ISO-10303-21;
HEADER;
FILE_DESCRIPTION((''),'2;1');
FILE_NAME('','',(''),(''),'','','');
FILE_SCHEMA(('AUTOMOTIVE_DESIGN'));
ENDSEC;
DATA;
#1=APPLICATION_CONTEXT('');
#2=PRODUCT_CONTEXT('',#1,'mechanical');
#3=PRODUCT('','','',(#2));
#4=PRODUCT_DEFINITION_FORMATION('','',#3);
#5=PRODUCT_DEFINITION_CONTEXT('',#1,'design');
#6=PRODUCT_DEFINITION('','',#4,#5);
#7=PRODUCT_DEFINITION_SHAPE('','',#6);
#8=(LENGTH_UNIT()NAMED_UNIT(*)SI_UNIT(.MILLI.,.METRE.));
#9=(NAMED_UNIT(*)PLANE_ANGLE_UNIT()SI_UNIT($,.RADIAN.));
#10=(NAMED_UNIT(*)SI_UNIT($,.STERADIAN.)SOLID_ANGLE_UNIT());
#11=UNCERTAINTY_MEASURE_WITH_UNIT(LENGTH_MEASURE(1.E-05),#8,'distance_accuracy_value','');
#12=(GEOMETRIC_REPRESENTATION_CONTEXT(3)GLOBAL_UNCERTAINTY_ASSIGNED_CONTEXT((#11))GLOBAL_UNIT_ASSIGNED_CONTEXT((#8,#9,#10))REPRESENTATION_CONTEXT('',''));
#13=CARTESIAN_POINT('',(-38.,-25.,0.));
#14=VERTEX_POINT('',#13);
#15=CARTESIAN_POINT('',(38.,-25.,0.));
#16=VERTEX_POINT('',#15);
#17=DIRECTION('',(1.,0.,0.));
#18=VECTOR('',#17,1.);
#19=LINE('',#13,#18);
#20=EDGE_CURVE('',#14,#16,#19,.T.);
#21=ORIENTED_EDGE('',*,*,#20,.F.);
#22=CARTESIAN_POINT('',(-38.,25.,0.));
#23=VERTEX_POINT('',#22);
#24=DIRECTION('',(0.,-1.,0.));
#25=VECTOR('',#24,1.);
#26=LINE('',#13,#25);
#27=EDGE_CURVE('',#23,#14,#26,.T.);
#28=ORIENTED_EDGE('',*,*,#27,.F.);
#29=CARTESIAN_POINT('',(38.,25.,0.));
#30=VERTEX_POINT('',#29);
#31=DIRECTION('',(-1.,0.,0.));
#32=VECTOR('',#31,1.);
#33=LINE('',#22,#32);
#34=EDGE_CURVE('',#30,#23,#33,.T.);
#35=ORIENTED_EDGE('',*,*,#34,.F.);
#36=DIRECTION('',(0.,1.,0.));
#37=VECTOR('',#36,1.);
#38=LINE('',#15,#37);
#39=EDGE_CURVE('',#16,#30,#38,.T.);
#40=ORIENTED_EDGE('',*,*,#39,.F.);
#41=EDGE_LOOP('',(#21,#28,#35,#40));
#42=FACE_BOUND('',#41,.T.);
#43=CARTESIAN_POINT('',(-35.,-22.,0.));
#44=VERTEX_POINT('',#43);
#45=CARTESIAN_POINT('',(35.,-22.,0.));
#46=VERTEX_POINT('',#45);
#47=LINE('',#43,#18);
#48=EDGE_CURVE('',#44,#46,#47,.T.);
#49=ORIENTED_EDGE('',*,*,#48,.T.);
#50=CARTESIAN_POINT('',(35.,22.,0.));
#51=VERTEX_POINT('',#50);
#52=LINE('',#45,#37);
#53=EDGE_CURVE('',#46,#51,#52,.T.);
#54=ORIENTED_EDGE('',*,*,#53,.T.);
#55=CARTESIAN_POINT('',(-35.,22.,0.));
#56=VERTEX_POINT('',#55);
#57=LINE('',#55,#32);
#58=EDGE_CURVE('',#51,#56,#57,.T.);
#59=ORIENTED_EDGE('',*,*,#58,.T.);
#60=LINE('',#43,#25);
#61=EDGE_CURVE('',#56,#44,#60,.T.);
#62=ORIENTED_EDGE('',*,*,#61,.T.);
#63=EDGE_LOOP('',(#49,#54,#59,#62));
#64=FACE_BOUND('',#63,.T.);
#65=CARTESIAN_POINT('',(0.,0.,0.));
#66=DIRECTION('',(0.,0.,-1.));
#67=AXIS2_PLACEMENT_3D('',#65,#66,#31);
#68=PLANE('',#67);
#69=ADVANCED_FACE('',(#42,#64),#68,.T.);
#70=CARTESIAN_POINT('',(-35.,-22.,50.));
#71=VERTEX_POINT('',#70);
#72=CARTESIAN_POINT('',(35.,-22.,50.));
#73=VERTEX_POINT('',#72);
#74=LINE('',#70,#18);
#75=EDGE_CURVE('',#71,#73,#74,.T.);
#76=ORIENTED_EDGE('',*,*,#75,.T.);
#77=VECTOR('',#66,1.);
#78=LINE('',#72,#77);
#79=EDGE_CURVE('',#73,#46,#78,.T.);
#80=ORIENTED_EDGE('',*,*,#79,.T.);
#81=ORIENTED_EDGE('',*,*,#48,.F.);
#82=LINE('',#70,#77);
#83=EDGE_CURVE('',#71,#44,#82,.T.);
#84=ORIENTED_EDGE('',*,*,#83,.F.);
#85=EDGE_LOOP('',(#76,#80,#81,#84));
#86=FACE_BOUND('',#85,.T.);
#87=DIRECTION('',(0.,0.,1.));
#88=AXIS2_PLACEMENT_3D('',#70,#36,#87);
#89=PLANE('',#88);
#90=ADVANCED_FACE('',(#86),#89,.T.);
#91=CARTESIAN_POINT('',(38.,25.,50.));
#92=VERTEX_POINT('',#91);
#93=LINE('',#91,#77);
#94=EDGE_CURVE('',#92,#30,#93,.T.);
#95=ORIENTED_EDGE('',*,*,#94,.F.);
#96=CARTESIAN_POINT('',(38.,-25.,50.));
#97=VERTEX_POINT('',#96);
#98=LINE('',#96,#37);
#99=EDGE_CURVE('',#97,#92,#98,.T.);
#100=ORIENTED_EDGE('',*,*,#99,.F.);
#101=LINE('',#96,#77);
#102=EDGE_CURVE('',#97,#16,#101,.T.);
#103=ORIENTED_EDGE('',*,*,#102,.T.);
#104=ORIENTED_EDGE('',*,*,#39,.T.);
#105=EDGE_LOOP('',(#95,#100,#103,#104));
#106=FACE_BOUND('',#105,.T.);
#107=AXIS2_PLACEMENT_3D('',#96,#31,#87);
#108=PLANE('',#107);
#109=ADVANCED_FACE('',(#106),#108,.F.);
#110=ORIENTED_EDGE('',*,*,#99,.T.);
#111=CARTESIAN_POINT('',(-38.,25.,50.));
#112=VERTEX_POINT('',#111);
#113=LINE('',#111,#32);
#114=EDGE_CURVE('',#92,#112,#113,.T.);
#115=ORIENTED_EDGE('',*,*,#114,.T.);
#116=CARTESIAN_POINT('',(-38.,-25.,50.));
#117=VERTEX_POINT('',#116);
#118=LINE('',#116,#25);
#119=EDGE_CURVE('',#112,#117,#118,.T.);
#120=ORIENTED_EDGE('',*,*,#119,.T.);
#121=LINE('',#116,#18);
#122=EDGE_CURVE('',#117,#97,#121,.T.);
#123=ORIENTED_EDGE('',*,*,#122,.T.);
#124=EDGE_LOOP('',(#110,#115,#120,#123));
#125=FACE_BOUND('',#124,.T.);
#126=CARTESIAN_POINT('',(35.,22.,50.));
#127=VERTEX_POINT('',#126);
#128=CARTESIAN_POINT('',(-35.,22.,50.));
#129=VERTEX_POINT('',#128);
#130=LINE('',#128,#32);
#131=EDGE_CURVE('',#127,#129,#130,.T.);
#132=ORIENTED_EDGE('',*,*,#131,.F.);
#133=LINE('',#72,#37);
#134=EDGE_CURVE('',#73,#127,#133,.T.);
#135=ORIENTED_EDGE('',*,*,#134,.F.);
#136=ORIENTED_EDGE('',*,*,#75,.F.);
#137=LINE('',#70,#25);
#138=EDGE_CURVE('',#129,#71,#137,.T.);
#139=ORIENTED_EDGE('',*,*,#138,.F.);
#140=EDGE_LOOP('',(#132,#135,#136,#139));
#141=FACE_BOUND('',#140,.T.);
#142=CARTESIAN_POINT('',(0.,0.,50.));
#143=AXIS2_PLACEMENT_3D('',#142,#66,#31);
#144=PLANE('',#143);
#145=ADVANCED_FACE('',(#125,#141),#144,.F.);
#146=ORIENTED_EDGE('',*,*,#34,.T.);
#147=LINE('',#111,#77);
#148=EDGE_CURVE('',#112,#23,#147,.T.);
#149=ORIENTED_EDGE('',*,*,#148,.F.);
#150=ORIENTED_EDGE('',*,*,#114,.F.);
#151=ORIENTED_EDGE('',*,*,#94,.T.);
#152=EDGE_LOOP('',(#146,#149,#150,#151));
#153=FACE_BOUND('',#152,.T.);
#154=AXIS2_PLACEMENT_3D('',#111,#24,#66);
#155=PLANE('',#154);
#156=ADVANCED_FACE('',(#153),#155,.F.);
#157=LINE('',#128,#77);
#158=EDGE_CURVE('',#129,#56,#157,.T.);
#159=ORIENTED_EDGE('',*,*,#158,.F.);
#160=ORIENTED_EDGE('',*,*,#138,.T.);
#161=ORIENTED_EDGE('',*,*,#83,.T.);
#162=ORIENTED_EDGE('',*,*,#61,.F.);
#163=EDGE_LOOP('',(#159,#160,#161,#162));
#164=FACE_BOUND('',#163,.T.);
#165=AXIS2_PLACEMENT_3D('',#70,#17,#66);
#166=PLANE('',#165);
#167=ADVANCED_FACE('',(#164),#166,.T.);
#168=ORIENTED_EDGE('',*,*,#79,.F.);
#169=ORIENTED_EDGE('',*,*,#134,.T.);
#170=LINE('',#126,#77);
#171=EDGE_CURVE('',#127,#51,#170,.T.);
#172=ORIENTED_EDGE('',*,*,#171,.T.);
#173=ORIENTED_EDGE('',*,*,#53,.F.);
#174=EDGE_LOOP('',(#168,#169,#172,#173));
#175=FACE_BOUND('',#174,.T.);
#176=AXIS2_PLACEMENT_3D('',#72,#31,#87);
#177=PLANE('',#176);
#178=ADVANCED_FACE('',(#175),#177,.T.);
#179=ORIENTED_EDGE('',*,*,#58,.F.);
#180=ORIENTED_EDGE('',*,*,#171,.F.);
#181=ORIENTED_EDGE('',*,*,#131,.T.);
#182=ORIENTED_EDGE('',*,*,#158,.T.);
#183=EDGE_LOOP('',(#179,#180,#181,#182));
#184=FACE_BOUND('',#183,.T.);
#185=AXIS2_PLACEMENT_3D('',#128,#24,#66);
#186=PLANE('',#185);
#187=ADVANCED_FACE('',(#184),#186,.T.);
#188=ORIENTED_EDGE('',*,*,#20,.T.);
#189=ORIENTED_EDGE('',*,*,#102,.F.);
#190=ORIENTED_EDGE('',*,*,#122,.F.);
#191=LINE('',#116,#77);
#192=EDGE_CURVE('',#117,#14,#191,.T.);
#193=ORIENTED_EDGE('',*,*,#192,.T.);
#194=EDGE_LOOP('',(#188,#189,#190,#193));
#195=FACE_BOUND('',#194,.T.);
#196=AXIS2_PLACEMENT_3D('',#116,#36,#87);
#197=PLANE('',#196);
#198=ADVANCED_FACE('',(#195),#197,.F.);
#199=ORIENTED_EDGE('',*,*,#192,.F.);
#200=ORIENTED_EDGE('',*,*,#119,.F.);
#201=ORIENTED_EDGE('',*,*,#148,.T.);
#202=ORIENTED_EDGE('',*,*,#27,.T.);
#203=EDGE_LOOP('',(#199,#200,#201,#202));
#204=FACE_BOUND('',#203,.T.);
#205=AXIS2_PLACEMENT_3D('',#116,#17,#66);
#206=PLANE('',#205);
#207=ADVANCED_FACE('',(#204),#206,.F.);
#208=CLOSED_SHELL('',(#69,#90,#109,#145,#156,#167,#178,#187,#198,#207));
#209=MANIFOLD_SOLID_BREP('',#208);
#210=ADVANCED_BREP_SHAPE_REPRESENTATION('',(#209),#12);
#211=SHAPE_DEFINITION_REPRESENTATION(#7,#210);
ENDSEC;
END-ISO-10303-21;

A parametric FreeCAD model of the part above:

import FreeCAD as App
import Part
import Sketcher
from FreeCAD import Vector


def add_polygon(sketch, points):
    """Adds a closed chain of lines whose ends are joined by coincident constraints."""
    first, n = sketch.GeometryCount, len(points)
    for a, b in zip(points, points[1:] + points[:1]):
        sketch.addGeometry(Part.LineSegment(App.Vector(*a, 0), App.Vector(*b, 0)), False)
    for i in range(n):
        sketch.addConstraint(Sketcher.Constraint("Coincident", first + i, 2, first + (i + 1) % n, 1))

doc = App.newDocument("Part")
params = doc.addObject("Spreadsheet::Sheet", "Params")
for row, (alias, value) in enumerate([
    ("sketch1_width", "76 mm"),
    ("sketch1_width2", "70 mm"),
    ("sketch1_height", "50 mm"),
    ("sketch1_height2", "44 mm"),
    ("pad1_length", "50 mm"),
], start=1):
    params.set(f"A{row}", alias)
    params.set(f"B{row}", "=" + value)
    params.setAlias(f"B{row}", alias)

body = doc.addObject("PartDesign::Body", "Body")

# Sketch on XY plane
sketch1 = body.newObject("Sketcher::SketchObject", "Sketch")
sketch1.AttachmentSupport = (doc.getObject("XY_Plane"), [""])
sketch1.MapMode = "FlatFace"
add_polygon(sketch1, [(-38, 25), (-38, -25), (38, -25), (38, 25)])  # lines 0-3
add_polygon(sketch1, [(35, -22), (-35, -22), (-35, 22), (35, 22)])  # lines 4-7
sketch1.addConstraint([
    Sketcher.Constraint("Vertical", 0),
    Sketcher.Constraint("Horizontal", 1),
    Sketcher.Constraint("Vertical", 2),
    Sketcher.Constraint("Horizontal", 3),
    Sketcher.Constraint("Horizontal", 4),
    Sketcher.Constraint("Vertical", 5),
    Sketcher.Constraint("Horizontal", 6),
    Sketcher.Constraint("Vertical", 7),
    Sketcher.Constraint("Symmetric", 0, 2, 2, 2, -1, 1),
    Sketcher.Constraint("Symmetric", 4, 2, 6, 2, -1, 1),
    Sketcher.Constraint("DistanceX", 1, 1, 1, 2, 76.0),
    Sketcher.Constraint("DistanceX", 4, 2, 4, 1, 70.0),
    Sketcher.Constraint("DistanceY", 0, 2, 0, 1, 50.0),
    Sketcher.Constraint("DistanceY", 5, 1, 5, 2, 44.0),
])
sketch1.setExpression("Constraints[18]", "Params.sketch1_width")
sketch1.setExpression("Constraints[19]", "Params.sketch1_width2")
sketch1.setExpression("Constraints[20]", "Params.sketch1_height")
sketch1.setExpression("Constraints[21]", "Params.sketch1_height2")
pad1 = body.newObject("PartDesign::Pad", "Pad")
pad1.Profile = sketch1
pad1.setExpression("Length", "Params.pad1_length")

doc.recompute()
